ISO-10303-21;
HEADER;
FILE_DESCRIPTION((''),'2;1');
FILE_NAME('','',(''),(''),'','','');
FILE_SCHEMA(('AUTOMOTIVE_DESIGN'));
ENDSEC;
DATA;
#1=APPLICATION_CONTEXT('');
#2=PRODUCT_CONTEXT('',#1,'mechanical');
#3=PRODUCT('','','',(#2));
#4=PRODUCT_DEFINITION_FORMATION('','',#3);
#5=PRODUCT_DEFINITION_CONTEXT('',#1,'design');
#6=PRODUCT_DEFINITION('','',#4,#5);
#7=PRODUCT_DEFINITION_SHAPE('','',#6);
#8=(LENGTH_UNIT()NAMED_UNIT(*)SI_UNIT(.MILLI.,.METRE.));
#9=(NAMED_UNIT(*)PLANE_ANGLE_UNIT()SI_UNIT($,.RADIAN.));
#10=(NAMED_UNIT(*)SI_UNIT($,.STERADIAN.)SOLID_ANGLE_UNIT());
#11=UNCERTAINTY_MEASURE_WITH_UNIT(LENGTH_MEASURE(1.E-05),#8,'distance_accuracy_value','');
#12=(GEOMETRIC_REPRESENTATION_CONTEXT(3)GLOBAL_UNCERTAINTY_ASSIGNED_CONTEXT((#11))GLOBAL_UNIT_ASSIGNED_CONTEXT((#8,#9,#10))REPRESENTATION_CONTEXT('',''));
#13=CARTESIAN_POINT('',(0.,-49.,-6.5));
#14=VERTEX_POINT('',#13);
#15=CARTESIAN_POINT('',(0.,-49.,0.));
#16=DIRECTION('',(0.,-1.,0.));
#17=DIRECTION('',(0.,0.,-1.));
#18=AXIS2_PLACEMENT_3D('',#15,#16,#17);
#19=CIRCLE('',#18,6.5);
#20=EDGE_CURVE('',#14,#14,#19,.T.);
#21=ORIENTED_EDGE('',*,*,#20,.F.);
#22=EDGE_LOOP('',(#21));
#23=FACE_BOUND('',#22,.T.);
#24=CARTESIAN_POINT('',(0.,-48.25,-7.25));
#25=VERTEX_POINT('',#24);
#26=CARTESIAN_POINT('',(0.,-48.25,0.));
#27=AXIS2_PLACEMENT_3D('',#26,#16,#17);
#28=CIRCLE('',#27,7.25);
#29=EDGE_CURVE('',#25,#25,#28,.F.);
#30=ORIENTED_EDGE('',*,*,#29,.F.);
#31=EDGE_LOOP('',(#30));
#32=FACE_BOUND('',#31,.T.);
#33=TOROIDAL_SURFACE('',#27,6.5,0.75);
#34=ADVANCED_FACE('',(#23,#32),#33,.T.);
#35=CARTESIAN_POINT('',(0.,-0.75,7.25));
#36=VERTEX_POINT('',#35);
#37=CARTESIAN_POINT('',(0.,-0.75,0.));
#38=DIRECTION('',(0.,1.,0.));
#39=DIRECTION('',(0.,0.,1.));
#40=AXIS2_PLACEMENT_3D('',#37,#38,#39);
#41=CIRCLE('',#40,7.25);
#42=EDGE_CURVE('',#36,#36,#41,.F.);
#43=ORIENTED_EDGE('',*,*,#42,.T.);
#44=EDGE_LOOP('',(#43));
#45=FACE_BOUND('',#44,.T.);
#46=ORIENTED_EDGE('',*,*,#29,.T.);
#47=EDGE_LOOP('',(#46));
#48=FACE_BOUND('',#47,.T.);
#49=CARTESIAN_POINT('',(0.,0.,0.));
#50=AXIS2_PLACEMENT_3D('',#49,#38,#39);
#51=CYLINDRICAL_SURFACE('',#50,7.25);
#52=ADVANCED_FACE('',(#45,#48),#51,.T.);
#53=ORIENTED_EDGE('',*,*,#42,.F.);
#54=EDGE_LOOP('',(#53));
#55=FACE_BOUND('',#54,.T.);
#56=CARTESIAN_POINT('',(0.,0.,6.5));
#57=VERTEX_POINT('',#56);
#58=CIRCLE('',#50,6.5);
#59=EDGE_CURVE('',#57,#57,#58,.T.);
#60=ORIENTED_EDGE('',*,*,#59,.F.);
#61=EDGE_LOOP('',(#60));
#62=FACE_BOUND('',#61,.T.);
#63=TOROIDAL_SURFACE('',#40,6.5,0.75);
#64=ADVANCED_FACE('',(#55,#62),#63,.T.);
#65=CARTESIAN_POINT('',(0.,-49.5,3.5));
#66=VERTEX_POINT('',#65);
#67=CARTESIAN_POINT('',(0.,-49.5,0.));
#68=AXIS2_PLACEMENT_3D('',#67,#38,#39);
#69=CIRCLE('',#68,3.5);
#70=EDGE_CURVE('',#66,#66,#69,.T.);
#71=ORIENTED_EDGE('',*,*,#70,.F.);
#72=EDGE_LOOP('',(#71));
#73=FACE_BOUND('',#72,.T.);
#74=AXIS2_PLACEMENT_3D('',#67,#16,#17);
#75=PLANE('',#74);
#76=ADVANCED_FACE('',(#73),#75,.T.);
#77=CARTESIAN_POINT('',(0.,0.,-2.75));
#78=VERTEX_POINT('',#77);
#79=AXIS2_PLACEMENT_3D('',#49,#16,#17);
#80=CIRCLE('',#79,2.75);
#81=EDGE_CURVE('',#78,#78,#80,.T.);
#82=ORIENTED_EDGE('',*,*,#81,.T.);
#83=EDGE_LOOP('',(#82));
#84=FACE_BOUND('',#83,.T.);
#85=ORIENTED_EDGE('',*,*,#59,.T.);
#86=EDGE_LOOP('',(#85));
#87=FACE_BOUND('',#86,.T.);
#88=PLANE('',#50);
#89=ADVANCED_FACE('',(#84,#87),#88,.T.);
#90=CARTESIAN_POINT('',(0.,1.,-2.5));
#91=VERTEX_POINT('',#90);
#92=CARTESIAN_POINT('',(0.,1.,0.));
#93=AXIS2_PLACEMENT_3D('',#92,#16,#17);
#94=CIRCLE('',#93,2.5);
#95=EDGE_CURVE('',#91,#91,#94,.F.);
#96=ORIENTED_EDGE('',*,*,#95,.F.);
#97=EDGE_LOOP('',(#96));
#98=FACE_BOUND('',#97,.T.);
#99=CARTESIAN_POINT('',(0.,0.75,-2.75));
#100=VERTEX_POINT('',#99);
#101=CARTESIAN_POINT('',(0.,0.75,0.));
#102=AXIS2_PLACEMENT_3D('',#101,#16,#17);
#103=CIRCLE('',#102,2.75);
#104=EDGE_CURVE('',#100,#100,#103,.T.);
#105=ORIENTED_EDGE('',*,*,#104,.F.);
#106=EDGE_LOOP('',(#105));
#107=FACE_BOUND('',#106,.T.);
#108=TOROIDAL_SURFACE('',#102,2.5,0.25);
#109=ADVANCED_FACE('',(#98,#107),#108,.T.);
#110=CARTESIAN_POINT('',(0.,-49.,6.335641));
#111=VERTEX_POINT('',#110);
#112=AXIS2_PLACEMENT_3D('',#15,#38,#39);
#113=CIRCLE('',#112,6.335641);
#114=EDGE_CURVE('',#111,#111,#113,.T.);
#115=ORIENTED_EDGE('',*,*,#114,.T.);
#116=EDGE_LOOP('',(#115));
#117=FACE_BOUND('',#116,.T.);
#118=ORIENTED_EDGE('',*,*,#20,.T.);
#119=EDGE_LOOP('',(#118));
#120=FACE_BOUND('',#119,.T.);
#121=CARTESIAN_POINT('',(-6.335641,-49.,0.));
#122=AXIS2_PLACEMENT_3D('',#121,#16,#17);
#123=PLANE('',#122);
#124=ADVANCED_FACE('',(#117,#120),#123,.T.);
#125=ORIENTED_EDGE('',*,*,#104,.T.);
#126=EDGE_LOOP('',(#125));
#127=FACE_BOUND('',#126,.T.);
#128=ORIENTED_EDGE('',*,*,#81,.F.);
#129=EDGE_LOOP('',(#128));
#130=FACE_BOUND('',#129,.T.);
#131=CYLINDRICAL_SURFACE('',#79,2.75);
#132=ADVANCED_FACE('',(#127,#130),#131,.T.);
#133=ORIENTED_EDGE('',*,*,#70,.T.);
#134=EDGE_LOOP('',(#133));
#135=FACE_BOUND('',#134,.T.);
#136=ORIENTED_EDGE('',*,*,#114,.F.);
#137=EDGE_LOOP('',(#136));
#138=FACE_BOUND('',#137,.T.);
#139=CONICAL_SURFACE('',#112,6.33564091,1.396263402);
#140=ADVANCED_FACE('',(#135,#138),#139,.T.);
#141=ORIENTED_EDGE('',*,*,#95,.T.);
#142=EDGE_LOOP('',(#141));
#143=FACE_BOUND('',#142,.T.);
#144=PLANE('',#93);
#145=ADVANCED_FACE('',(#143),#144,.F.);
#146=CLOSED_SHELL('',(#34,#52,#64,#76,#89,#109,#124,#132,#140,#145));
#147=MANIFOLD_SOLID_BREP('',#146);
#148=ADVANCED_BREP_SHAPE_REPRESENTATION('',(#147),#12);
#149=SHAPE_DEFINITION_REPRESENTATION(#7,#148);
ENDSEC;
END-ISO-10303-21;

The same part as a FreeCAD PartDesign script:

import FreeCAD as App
import Part
import Sketcher

V = App.Vector
Q = App.Units.Quantity


def edges_at(feature, points):
    """Names of the edges that pass closest to the given points."""
    edges = feature.Shape.Edges
    near = lambda p: min(range(len(edges)), key=lambda i: edges[i].distToShape(Part.Vertex(*p))[0])
    return sorted({f"Edge{near(p) + 1}" for p in points})

doc = App.newDocument("Part")
body = doc.addObject("PartDesign::Body", "Body")

# Sketch on XY plane
sketch1 = body.newObject("Sketcher::SketchObject", "Sketch")
sketch1.AttachmentSupport = (doc.getObject("XY_Plane"), [""])
sketch1.MapMode = "FlatFace"
sketch1.addGeometry(Part.LineSegment(V(0, 0, 0), V(-7.2, 0, 0)), False)
sketch1.addGeometry(Part.LineSegment(V(-7.2, 0, 0), V(-7.2, -49, 0)), False)
sketch1.addGeometry(Part.LineSegment(V(-7.2, -49, 0), V(-6.3, -49, 0)), False)
sketch1.addGeometry(Part.LineSegment(V(-6.3, -49, 0), V(-3.5, -49.5, 0)), False)
sketch1.addGeometry(Part.LineSegment(V(-3.5, -49.5, 0), V(0, -49.5, 0)), False)
sketch1.addGeometry(Part.LineSegment(V(0, -49.5, 0), V(0, 0, 0)), False)
sketch1.addConstraint(Sketcher.Constraint("Coincident", 0, 2, 1, 1))
sketch1.addConstraint(Sketcher.Constraint("Coincident", 1, 2, 2, 1))
sketch1.addConstraint(Sketcher.Constraint("Coincident", 2, 2, 3, 1))
sketch1.addConstraint(Sketcher.Constraint("Coincident", 3, 2, 4, 1))
sketch1.addConstraint(Sketcher.Constraint("Coincident", 4, 2, 5, 1))
sketch1.addConstraint(Sketcher.Constraint("Coincident", 5, 2, 0, 1))
sketch1.addConstraint(Sketcher.Constraint("Horizontal", 0))
sketch1.addConstraint(Sketcher.Constraint("Vertical", 1))
sketch1.addConstraint(Sketcher.Constraint("Horizontal", 2))
sketch1.addConstraint(Sketcher.Constraint("Horizontal", 4))
sketch1.addConstraint(Sketcher.Constraint("Vertical", 5))
sketch1.addConstraint(Sketcher.Constraint("Coincident", 5, 2, -1, 1))
sketch1.addConstraint(Sketcher.Constraint("DistanceY", 1, 2, 1, 1, 49.0))
sketch1.addConstraint(Sketcher.Constraint("Angle", 3, Q("-10 deg")))
sketch1.addConstraint(Sketcher.Constraint("DistanceX", 4, 1, 4, 2, 3.5))
sketch1.addConstraint(Sketcher.Constraint("DistanceY", 5, 1, 5, 2, 49.5))
sketch1.addConstraint(Sketcher.Constraint("DistanceX", 0, 2, 0, 1, 7.25))
revolution = body.newObject("PartDesign::Revolution", "Revolution")
revolution.Profile = sketch1
revolution.ReferenceAxis = (sketch1, ["V_Axis"])
revolution.Angle = 360

# Sketch on XY plane
sketch2 = body.newObject("Sketcher::SketchObject", "Sketch001")
sketch2.AttachmentSupport = (doc.getObject("XY_Plane"), [""])
sketch2.MapMode = "FlatFace"
sketch2.addGeometry(Part.LineSegment(V(-2.8, 1, 0), V(-2.8, 0, 0)), False)
sketch2.addGeometry(Part.LineSegment(V(-2.8, 0, 0), V(0, 0, 0)), False)
sketch2.addGeometry(Part.LineSegment(V(0, 0, 0), V(0, 1, 0)), False)
sketch2.addGeometry(Part.LineSegment(V(0, 1, 0), V(-2.8, 1, 0)), False)
sketch2.addConstraint(Sketcher.Constraint("Coincident", 0, 2, 1, 1))
sketch2.addConstraint(Sketcher.Constraint("Coincident", 1, 2, 2, 1))
sketch2.addConstraint(Sketcher.Constraint("Coincident", 2, 2, 3, 1))
sketch2.addConstraint(Sketcher.Constraint("Coincident", 3, 2, 0, 1))
sketch2.addConstraint(Sketcher.Constraint("Vertical", 0))
sketch2.addConstraint(Sketcher.Constraint("Horizontal", 1))
sketch2.addConstraint(Sketcher.Constraint("Vertical", 2))
sketch2.addConstraint(Sketcher.Constraint("Horizontal", 3))
sketch2.addConstraint(Sketcher.Constraint("Coincident", 1, 2, -1, 1))
sketch2.addConstraint(Sketcher.Constraint("DistanceY", 0, 2, 0, 1, 1.0))
sketch2.addConstraint(Sketcher.Constraint("DistanceX", 1, 1, 1, 2, 2.75))
revolution2 = body.newObject("PartDesign::Revolution", "Revolution001")
revolution2.Profile = sketch2
revolution2.ReferenceAxis = (sketch2, ["V_Axis"])
revolution2.Angle = 360
doc.recompute()

fillet = body.newObject("PartDesign::Fillet", "Fillet")
fillet.Base = (revolution2, edges_at(revolution2, [(0, -49, -7.25), (0, 0, -7.25)]))
fillet.Radius = 0.75
doc.recompute()

fillet2 = body.newObject("PartDesign::Fillet", "Fillet001")
fillet2.Base = (fillet, edges_at(fillet, [(0, 1, 2.75)]))
fillet2.Radius = 0.25

doc.recompute()
